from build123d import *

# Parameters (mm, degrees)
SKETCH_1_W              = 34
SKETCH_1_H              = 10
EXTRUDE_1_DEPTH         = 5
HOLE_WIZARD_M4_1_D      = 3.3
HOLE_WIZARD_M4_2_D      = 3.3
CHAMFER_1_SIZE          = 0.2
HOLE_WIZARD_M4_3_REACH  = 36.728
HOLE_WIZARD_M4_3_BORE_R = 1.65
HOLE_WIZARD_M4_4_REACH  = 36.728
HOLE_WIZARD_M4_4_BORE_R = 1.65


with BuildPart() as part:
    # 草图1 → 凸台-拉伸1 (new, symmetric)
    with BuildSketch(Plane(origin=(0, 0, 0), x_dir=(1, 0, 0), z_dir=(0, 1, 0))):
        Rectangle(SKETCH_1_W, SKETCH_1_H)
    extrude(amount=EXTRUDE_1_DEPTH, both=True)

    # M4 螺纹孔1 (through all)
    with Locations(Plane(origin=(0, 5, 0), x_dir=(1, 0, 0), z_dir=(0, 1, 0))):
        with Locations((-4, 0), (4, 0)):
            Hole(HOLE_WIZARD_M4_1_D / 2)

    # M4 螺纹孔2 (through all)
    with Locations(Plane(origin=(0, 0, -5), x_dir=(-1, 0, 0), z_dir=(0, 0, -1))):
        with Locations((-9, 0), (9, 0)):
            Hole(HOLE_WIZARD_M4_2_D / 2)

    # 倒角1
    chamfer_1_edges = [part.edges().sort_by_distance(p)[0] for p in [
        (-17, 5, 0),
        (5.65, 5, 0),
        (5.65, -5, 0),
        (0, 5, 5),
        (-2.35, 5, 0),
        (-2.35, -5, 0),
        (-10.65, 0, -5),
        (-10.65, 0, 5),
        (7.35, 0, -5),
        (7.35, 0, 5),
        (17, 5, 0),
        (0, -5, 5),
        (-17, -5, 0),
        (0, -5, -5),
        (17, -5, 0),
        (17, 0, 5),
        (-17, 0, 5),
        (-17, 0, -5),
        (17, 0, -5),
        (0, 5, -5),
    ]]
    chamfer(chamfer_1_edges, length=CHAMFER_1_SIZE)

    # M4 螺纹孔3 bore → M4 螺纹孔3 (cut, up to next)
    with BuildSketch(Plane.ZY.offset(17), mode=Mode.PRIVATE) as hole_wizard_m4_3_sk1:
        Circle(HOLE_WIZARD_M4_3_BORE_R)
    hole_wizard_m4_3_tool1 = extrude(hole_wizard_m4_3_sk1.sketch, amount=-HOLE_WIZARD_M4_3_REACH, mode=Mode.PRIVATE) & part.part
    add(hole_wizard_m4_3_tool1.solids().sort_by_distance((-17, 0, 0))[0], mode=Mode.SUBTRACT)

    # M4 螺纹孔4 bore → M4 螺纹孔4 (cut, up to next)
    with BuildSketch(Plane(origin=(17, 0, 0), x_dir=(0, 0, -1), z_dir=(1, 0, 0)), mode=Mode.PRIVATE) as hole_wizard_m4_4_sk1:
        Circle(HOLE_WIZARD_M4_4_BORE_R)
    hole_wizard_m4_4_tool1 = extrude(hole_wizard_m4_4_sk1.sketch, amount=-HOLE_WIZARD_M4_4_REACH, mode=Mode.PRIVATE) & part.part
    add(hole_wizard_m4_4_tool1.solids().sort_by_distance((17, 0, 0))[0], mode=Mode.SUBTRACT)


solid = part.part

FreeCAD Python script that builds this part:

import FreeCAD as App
import Part
import Sketcher

V = App.Vector
Q = App.Units.Quantity


def add_polygon(sketch, points):
    """Adds a closed chain of lines whose ends are joined by coincident constraints."""
    first, n = sketch.GeometryCount, len(points)
    for a, b in zip(points, points[1:] + points[:1]):
        sketch.addGeometry(Part.LineSegment(App.Vector(*a, 0), App.Vector(*b, 0)), False)
    for i in range(n):
        sketch.addConstraint(Sketcher.Constraint("Coincident", first + i, 2, first + (i + 1) % n, 1))

doc = App.newDocument("Part")
body = doc.addObject("PartDesign::Body", "Body")

sketch1 = doc.addObject("Sketcher::SketchObject", "Sketch")
body.addObject(sketch1)
sketch1.AttachmentSupport = (doc.XZ_Plane, [""])
sketch1.MapMode = "FlatFace"
add_polygon(sketch1, [(-17, -5), (-17, 5), (17, 5), (17, -5)])
sketch1.addConstraint([
    Sketcher.Constraint("Vertical", 0),
    Sketcher.Constraint("Horizontal", 1),
    Sketcher.Constraint("Vertical", 2),
    Sketcher.Constraint("Horizontal", 3),
    Sketcher.Constraint("Symmetric", 0, 2, 2, 2, -1, 1),
    Sketcher.Constraint("DistanceX", 1, 1, 1, 2, Q("34 mm")),
    Sketcher.Constraint("DistanceY", 0, 1, 0, 2, Q("10 mm")),
])
pad1 = doc.addObject("PartDesign::Pad", "Pad")
body.addObject(pad1)
pad1.Profile = sketch1
pad1.Length = 10
pad1.Midplane = True

sketch2 = doc.addObject("Sketcher::SketchObject", "Sketch001")
body.addObject(sketch2)
sketch2.AttachmentSupport = (doc.XZ_Plane, [""])
sketch2.MapMode = "FlatFace"
sketch2.AttachmentOffset = App.Placement(V(0, 0, -5), App.Rotation())
sketch2.addGeometry([
    Part.Circle(V(-4, 0, 0), V(0, 0, 1), 1.65),
    Part.Circle(V(4, 0, 0), V(0, 0, 1), 1.65),
], False)
sketch2.addConstraint([
    Sketcher.Constraint("Equal", 0, 1),
    Sketcher.Constraint("Symmetric", 0, 3, 1, 3, -1, 1),
    Sketcher.Constraint("PointOnObject", 0, 3, -1),
    Sketcher.Constraint("Diameter", 0, Q("3.3 mm")),
    Sketcher.Constraint("DistanceX", 0, 3, -1, 1, Q("4 mm")),
])
doc.recompute()
hole = doc.addObject("PartDesign::Hole", "Hole")
body.addObject(hole)
hole.Profile = sketch2
hole.ThreadType = "None"
hole.Diameter = 3.3
hole.DepthType = "ThroughAll"
hole.Reversed = True

sketch3 = doc.addObject("Sketcher::SketchObject", "Sketch002")
body.addObject(sketch3)
sketch3.AttachmentSupport = (doc.XY_Plane, [""])
sketch3.MapMode = "FlatFace"
sketch3.AttachmentOffset = App.Placement(V(0, 0, -5), App.Rotation())
sketch3.addGeometry([
    Part.Circle(V(9, 0, 0), V(0, 0, 1), 1.65),
    Part.Circle(V(-9, 0, 0), V(0, 0, 1), 1.65),
], False)
sketch3.addConstraint([
    Sketcher.Constraint("Equal", 0, 1),
    Sketcher.Constraint("Symmetric", 0, 3, 1, 3, -1, 1),
    Sketcher.Constraint("PointOnObject", 0, 3, -1),
    Sketcher.Constraint("Diameter", 0, Q("3.3 mm")),
    Sketcher.Constraint("DistanceX", -1, 1, 0, 3, Q("9 mm")),
])
doc.recompute()
hole2 = doc.addObject("PartDesign::Hole", "Hole001")
body.addObject(hole2)
hole2.Profile = sketch3
hole2.ThreadType = "None"
hole2.Diameter = 3.3
hole2.DepthType = "ThroughAll"
hole2.Reversed = True
doc.recompute()

chamfer = doc.addObject("PartDesign::Chamfer", "Chamfer")
body.addObject(chamfer)
chamfer.Base = (hole2, ["Edge1"])
chamfer.UseAllEdges = True
chamfer.Size = 0.2

sketch4 = doc.addObject("Sketcher::SketchObject", "Sketch003")
body.addObject(sketch4)
sketch4.AttachmentSupport = (doc.YZ_Plane, [""])
sketch4.MapMode = "FlatFace"
sketch4.AttachmentOffset = App.Placement(V(0, 0, -17), App.Rotation())
sketch4.addGeometry(Part.Circle(V(0, 0, 0), V(0, 0, 1), 1.65), False)
sketch4.addConstraint([
    Sketcher.Constraint("Coincident", 0, 3, -1, 1),
    Sketcher.Constraint("Diameter", 0, Q("3.3 mm")),
])
pocket1 = doc.addObject("PartDesign::Pocket", "Pocket")
body.addObject(pocket1)
pocket1.Profile = sketch4
pocket1.Length = 8
pocket1.Reversed = True

sketch5 = doc.addObject("Sketcher::SketchObject", "Sketch004")
body.addObject(sketch5)
sketch5.AttachmentSupport = (doc.YZ_Plane, [""])
sketch5.MapMode = "FlatFace"
sketch5.AttachmentOffset = App.Placement(V(0, 0, 17), App.Rotation())
sketch5.addGeometry(Part.Circle(V(0, 0, 0), V(0, 0, 1), 1.65), False)
sketch5.addConstraint([
    Sketcher.Constraint("Coincident", 0, 3, -1, 1),
    Sketcher.Constraint("Diameter", 0, Q("3.3 mm")),
])
pocket2 = doc.addObject("PartDesign::Pocket", "Pocket001")
body.addObject(pocket2)
pocket2.Profile = sketch5
pocket2.Type = "UpToFirst"

doc.recompute()
